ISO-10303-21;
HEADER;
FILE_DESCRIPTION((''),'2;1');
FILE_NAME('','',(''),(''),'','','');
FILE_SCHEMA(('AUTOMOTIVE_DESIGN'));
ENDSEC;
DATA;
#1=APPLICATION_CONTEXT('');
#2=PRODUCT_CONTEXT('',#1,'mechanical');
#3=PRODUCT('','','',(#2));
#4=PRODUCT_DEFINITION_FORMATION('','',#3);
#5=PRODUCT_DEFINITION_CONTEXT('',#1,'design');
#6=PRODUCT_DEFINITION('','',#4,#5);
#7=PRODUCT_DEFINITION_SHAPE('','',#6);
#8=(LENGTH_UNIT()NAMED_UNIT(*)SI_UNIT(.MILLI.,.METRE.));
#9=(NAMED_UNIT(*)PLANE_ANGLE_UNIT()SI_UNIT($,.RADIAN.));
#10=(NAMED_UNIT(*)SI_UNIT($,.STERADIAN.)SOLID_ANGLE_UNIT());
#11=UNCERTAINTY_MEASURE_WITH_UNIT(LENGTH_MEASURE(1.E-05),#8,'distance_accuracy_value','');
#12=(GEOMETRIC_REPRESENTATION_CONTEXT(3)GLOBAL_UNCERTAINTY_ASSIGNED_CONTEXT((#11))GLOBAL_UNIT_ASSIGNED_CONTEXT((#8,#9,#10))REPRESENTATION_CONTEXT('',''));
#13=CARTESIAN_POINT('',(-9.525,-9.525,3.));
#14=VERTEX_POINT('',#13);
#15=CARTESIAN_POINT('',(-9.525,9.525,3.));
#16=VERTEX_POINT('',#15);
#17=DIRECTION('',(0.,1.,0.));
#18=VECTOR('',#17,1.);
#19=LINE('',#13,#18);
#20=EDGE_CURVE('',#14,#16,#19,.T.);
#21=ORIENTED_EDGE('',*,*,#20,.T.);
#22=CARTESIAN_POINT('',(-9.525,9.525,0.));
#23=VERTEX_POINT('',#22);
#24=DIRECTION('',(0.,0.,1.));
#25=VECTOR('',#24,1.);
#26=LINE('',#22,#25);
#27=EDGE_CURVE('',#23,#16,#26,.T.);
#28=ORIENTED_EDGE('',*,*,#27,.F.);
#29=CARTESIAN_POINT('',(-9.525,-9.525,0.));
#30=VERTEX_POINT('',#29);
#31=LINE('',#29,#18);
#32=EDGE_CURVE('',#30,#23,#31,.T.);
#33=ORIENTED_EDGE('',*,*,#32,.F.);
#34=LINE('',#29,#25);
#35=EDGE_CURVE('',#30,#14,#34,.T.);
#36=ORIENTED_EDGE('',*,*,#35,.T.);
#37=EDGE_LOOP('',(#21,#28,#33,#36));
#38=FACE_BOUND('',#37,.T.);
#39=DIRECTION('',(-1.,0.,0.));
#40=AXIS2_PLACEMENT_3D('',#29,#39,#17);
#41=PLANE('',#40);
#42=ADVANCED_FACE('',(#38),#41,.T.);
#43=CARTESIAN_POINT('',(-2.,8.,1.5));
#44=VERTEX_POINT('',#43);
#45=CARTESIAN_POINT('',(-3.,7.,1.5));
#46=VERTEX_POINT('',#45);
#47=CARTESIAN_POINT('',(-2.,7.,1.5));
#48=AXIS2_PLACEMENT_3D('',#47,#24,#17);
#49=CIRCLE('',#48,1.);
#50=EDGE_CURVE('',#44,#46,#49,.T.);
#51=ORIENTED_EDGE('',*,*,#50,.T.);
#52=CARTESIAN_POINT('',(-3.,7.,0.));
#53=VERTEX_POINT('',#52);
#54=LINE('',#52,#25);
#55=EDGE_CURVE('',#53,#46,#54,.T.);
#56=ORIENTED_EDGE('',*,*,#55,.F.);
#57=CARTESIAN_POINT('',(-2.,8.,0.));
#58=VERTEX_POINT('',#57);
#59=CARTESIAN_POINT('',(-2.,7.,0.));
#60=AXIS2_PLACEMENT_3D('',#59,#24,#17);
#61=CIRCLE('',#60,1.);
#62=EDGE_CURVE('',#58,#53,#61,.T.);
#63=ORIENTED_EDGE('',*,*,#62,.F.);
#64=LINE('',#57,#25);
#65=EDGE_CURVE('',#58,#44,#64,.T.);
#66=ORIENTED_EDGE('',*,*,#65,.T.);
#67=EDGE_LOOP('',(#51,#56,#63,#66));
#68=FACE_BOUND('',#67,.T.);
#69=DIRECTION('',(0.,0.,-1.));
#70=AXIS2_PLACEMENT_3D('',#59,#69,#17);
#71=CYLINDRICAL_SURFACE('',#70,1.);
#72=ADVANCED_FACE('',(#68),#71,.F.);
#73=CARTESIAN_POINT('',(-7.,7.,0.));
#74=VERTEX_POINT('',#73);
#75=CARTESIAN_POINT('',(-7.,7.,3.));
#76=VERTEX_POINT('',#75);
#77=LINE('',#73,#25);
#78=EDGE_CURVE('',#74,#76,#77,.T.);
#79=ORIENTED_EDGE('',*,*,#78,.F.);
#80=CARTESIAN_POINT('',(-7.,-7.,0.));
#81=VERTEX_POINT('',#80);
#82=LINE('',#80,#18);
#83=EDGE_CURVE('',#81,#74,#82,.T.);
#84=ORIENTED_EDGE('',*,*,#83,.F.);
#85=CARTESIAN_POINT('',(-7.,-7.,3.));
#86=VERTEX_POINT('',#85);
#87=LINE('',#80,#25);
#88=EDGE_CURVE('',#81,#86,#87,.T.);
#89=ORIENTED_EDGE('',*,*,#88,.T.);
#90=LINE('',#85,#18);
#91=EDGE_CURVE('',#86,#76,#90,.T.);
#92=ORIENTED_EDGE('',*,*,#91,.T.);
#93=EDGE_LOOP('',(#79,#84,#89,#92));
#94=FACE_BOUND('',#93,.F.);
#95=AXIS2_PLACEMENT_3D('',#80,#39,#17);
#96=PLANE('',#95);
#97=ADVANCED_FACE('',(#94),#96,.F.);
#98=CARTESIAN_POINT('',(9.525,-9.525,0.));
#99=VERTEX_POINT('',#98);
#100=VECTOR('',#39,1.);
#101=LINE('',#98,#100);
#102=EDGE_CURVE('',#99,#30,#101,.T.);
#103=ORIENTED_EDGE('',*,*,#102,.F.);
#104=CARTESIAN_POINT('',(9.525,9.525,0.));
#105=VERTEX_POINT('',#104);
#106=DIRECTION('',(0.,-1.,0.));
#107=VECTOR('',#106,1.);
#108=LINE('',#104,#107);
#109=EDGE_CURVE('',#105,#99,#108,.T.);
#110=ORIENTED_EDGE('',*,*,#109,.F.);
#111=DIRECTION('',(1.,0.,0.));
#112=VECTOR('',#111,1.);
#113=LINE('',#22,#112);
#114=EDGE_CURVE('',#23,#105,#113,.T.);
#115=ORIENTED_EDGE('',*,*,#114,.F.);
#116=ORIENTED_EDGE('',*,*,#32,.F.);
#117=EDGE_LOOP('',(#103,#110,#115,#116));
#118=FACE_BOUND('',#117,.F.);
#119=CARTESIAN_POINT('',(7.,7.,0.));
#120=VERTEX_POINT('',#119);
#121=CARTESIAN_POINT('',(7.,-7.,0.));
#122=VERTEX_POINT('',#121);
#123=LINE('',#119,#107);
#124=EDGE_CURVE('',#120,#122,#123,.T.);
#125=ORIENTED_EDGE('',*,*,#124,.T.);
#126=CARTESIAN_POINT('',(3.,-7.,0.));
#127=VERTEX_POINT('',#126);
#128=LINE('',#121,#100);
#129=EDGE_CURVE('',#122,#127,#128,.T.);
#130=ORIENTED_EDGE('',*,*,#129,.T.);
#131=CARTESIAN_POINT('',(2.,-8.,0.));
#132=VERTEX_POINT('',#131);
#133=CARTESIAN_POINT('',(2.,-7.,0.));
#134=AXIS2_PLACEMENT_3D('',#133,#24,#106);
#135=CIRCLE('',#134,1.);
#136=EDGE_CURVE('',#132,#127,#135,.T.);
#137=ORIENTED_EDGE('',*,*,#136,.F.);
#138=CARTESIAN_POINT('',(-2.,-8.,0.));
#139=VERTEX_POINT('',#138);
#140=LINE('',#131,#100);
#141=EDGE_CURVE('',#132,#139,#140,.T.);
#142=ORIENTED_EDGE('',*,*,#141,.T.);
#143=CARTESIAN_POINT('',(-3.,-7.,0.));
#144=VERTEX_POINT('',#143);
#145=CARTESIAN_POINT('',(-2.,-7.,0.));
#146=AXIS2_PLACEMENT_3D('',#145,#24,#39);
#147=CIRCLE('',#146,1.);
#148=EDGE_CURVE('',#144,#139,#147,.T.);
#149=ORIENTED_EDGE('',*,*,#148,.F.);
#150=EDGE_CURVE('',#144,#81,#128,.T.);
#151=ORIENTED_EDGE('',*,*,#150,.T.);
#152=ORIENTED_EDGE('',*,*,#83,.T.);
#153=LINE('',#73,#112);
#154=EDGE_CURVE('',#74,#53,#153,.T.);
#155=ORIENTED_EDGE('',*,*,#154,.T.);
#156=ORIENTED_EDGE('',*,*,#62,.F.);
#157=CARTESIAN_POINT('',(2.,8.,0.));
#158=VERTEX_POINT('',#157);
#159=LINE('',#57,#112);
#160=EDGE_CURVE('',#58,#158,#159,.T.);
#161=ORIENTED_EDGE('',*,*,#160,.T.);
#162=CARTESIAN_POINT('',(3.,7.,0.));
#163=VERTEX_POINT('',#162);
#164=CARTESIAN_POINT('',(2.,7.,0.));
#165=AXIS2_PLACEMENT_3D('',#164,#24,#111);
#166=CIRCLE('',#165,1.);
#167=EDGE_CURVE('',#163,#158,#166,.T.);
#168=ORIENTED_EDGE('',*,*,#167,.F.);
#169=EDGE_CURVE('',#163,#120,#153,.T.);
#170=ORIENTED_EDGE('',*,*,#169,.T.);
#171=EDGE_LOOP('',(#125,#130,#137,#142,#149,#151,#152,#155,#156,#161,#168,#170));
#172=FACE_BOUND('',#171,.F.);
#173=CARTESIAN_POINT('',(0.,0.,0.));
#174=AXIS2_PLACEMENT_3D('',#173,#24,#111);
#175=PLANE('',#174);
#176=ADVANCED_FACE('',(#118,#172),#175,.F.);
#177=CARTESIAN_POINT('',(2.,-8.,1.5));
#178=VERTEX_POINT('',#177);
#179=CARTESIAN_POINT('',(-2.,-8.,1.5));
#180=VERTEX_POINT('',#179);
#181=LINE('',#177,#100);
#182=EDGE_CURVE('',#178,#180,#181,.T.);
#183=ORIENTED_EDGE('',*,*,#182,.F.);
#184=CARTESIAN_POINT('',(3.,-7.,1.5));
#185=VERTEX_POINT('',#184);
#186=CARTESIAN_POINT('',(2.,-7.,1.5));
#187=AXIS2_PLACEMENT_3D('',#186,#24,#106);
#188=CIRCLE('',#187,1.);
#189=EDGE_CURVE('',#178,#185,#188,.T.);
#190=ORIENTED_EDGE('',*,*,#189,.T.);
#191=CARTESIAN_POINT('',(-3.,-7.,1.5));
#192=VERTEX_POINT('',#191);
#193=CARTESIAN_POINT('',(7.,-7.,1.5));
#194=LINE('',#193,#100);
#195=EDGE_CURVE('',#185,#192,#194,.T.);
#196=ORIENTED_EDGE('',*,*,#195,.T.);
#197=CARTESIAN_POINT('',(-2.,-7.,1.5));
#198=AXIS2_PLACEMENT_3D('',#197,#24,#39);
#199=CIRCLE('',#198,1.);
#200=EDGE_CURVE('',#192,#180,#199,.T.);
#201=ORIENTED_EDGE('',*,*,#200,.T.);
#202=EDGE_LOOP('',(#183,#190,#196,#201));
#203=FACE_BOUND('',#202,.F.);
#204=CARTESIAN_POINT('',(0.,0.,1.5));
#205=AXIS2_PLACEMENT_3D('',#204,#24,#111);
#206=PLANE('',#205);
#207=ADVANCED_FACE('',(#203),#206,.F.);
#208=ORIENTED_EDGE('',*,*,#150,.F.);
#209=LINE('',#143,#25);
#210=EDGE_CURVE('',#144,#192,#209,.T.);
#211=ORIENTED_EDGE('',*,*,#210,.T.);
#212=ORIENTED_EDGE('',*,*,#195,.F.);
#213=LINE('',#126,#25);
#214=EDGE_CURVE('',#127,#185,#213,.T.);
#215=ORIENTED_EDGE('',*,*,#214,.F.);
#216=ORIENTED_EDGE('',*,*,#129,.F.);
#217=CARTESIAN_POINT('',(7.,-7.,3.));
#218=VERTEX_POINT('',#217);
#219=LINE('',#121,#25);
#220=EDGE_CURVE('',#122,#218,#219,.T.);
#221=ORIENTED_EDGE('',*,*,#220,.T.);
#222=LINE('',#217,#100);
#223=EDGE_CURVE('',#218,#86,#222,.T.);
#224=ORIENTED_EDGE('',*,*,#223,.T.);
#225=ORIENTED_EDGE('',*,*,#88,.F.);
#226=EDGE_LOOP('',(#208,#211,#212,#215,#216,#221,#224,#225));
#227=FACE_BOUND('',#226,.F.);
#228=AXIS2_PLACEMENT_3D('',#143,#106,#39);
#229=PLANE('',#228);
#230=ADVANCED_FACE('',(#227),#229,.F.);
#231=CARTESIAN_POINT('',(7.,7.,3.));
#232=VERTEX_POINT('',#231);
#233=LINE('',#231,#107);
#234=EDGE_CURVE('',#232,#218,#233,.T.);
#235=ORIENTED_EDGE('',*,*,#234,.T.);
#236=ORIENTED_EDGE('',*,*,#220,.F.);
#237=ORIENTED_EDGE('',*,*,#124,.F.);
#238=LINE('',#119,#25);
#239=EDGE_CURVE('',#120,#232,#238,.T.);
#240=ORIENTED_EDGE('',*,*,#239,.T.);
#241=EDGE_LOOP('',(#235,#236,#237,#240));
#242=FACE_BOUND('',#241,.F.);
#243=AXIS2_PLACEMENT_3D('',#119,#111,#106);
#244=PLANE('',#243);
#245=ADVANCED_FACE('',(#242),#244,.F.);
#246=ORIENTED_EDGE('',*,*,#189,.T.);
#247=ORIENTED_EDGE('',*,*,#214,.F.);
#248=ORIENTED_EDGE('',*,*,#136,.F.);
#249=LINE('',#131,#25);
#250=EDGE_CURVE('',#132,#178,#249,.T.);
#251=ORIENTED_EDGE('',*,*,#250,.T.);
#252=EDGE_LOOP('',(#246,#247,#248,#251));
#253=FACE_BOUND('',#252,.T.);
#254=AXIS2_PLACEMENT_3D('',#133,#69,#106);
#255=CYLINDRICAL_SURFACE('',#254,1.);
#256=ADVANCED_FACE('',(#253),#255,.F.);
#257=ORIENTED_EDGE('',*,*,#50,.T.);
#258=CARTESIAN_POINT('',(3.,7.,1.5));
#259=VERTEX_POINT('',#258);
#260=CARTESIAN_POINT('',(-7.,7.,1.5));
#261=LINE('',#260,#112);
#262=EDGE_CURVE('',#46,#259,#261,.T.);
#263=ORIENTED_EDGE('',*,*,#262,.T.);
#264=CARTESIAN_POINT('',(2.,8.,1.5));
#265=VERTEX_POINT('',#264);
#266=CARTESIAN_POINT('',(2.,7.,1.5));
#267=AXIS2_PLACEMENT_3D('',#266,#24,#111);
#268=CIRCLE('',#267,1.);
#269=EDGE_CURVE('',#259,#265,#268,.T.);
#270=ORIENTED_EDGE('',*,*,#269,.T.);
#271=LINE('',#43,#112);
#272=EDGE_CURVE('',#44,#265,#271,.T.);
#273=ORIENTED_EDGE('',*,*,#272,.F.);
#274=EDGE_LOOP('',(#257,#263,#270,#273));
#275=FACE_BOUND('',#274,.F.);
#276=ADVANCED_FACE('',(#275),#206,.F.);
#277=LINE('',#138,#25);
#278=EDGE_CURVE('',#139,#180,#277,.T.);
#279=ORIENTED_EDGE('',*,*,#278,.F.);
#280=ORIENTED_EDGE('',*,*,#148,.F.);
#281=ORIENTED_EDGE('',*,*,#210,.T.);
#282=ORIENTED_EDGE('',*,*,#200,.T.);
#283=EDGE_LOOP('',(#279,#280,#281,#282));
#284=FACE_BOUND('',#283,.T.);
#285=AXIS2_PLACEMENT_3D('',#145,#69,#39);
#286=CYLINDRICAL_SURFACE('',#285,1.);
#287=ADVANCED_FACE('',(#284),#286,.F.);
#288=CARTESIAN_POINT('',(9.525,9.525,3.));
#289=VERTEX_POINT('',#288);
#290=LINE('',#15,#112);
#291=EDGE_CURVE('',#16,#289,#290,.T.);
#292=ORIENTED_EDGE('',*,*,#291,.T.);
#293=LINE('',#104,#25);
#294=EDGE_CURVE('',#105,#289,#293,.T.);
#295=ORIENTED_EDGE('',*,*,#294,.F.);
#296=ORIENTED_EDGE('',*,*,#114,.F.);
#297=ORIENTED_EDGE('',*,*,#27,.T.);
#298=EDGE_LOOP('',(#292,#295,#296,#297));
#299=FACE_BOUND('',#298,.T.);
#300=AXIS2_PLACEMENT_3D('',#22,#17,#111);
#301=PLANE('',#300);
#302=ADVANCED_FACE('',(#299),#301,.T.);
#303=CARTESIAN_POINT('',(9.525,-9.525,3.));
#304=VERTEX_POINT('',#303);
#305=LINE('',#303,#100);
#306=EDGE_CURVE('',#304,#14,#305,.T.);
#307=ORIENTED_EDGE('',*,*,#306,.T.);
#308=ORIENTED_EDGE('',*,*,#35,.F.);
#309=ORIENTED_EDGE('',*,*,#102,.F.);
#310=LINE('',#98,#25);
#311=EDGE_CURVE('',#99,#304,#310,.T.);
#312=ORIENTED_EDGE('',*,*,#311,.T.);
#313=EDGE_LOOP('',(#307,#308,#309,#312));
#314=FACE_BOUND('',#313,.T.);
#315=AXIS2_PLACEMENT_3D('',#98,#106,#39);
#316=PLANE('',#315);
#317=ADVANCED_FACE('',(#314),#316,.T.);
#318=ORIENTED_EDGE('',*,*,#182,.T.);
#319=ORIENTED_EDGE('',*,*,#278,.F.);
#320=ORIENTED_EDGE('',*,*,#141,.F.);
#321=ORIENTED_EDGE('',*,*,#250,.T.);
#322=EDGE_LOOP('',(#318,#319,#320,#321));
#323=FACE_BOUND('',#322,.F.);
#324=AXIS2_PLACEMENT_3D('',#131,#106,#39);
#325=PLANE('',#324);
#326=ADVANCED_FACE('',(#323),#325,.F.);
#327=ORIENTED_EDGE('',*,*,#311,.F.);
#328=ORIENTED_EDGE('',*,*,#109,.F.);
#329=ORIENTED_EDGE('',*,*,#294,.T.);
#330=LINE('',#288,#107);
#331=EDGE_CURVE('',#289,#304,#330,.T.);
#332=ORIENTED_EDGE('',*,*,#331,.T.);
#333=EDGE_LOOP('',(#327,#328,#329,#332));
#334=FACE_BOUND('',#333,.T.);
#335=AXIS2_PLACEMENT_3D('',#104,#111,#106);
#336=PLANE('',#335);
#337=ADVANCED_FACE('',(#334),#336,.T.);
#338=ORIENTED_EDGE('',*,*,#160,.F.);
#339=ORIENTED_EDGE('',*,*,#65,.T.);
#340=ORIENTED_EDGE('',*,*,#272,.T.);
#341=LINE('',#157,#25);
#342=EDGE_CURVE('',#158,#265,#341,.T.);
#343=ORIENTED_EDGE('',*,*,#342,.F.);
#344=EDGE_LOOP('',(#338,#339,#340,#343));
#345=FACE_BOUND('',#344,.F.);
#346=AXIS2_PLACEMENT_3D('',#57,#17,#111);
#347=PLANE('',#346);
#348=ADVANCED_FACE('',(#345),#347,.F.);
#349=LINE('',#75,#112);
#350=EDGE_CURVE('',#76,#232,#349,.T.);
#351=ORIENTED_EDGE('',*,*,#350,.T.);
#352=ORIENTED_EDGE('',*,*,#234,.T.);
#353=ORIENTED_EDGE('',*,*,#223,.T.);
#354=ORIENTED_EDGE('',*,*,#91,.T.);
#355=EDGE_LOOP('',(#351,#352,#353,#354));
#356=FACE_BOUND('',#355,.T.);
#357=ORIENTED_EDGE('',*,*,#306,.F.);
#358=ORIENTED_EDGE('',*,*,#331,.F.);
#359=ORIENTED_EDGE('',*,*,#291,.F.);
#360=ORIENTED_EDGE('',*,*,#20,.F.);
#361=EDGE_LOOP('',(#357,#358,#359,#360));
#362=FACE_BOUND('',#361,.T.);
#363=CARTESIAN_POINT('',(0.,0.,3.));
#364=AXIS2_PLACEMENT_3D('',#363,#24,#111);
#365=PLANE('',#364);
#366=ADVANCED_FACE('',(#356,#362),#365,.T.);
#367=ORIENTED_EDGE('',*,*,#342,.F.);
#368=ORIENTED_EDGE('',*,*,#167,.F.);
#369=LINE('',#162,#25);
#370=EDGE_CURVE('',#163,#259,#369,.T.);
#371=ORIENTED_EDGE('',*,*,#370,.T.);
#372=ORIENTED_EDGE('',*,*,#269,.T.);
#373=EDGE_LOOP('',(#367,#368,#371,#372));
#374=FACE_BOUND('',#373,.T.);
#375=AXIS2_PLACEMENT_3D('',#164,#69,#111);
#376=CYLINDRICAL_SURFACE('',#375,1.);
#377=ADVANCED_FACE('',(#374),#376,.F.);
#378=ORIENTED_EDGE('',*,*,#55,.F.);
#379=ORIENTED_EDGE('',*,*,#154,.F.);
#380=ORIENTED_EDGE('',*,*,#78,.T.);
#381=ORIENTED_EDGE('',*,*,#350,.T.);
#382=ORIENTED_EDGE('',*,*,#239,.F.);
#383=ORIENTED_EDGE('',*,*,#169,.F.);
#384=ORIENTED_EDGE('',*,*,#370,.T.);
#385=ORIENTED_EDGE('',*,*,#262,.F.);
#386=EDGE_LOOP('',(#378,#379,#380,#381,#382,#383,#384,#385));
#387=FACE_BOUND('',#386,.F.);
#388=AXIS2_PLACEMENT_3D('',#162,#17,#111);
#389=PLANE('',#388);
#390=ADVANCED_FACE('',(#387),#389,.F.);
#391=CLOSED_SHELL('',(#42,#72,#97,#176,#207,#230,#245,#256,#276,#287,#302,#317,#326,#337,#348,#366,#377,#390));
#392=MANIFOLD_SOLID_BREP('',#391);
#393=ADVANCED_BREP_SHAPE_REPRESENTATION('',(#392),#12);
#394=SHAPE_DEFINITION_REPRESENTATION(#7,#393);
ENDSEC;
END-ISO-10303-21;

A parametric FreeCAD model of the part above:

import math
import FreeCAD as App
import Part
import Sketcher

V = App.Vector

doc = App.newDocument("Part")
params = doc.addObject("Spreadsheet::Sheet", "Params")
for row, (alias, value) in enumerate([
    ("sketch1_radius", "1 mm"),
    ("sketch1_width", "4 mm"),
    ("sketch1_height", "14 mm"),
    ("sketch1_width2", "19.05 mm"),
    ("pad1_length", "3 mm"),
    ("sketch2_radius", "1 mm"),
    ("sketch2_width", "6 mm"),
    ("pad2_length", "1.5 mm"),
], start=1):
    params.set(f"A{row}", alias)
    params.set(f"B{row}", "=" + value)
    params.setAlias(f"B{row}", alias)

body = doc.addObject("PartDesign::Body", "Body")

# Sketch on XY plane
sketch1 = body.newObject("Sketcher::SketchObject", "Sketch")
sketch1.AttachmentSupport = (doc.getObject("XY_Plane"), [""])
sketch1.MapMode = "FlatFace"
sketch1.addGeometry([
    Part.LineSegment(V(-9.525, -9.525, 0), V(9.525, -9.525, 0)),  # 0
    Part.LineSegment(V(9.525, -9.525, 0), V(9.525, 9.525, 0)),  # 1
    Part.LineSegment(V(9.525, 9.525, 0), V(-9.525, 9.525, 0)),  # 2
    Part.LineSegment(V(-9.525, 9.525, 0), V(-9.525, -9.525, 0)),  # 3
    Part.LineSegment(V(7, 7, 0), V(7, -7, 0)),  # 4
    Part.LineSegment(V(7, -7, 0), V(3, -7, 0)),  # 5
    Part.ArcOfCircle(Part.Circle(V(2, -7, 0), V(0, 0, 1), 1), math.radians(-90), math.radians(0)),  # 6
    Part.LineSegment(V(2, -8, 0), V(-2, -8, 0)),  # 7
    Part.ArcOfCircle(Part.Circle(V(-2, -7, 0), V(0, 0, 1), 1), math.radians(180), math.radians(270)),  # 8
    Part.LineSegment(V(-3, -7, 0), V(-7, -7, 0)),  # 9
    Part.LineSegment(V(-7, -7, 0), V(-7, 7, 0)),  # 10
    Part.LineSegment(V(-7, 7, 0), V(-3, 7, 0)),  # 11
    Part.ArcOfCircle(Part.Circle(V(-2, 7, 0), V(0, 0, 1), 1), math.radians(90), math.radians(180)),  # 12
    Part.LineSegment(V(-2, 8, 0), V(2, 8, 0)),  # 13
    Part.ArcOfCircle(Part.Circle(V(2, 7, 0), V(0, 0, 1), 1), math.radians(0), math.radians(90)),  # 14
    Part.LineSegment(V(3, 7, 0), V(7, 7, 0)),  # 15
], False)
sketch1.addConstraint([
    Sketcher.Constraint("Coincident", 0, 2, 1, 1),
    Sketcher.Constraint("Coincident", 1, 2, 2, 1),
    Sketcher.Constraint("Coincident", 2, 2, 3, 1),
    Sketcher.Constraint("Coincident", 3, 2, 0, 1),
    Sketcher.Constraint("Coincident", 4, 2, 5, 1),
    Sketcher.Constraint("Coincident", 5, 2, 6, 2),
    Sketcher.Constraint("Tangent", 6, 1, 7, 1),
    Sketcher.Constraint("Tangent", 7, 2, 8, 2),
    Sketcher.Constraint("Coincident", 8, 1, 9, 1),
    Sketcher.Constraint("Coincident", 9, 2, 10, 1),
    Sketcher.Constraint("Coincident", 10, 2, 11, 1),
    Sketcher.Constraint("Coincident", 11, 2, 12, 2),
    Sketcher.Constraint("Tangent", 12, 1, 13, 1),
    Sketcher.Constraint("Tangent", 13, 2, 14, 2),
    Sketcher.Constraint("Coincident", 14, 1, 15, 1),
    Sketcher.Constraint("Coincident", 15, 2, 4, 1),
    Sketcher.Constraint("Horizontal", 0),
    Sketcher.Constraint("Vertical", 1),
    Sketcher.Constraint("Horizontal", 2),
    Sketcher.Constraint("Vertical", 3),
    Sketcher.Constraint("Vertical", 4),
    Sketcher.Constraint("Horizontal", 5),
    Sketcher.Constraint("Horizontal", 7),
    Sketcher.Constraint("Horizontal", 9),
    Sketcher.Constraint("Vertical", 10),
    Sketcher.Constraint("Horizontal", 11),
    Sketcher.Constraint("Horizontal", 13),
    Sketcher.Constraint("Horizontal", 15),
    Sketcher.Constraint("Equal", 6, 8),
    Sketcher.Constraint("Equal", 8, 12),
    Sketcher.Constraint("Equal", 12, 14),
    Sketcher.Constraint("Symmetric", 6, 3, 12, 3, -1, 1),
    Sketcher.Constraint("Symmetric", 0, 2, 2, 2, -1, 1),
    Sketcher.Constraint("Symmetric", 4, 2, 10, 2, -1, 1),
    Sketcher.Constraint("Symmetric", 8, 1, 14, 1, -1, 1),
    Sketcher.Constraint("Symmetric", 5, 2, 8, 1, -2),
    Sketcher.Constraint("Horizontal", 8, 3, 4, 2),
    Sketcher.Constraint("Equal", 5, 7),
    Sketcher.Constraint("Equal", 2, 1),
    Sketcher.Constraint("Radius", 6, 1.0),
    Sketcher.Constraint("DistanceX", 5, 2, 5, 1, 4.0),
    Sketcher.Constraint("DistanceY", 4, 2, 4, 1, 14.0),
    Sketcher.Constraint("DistanceX", 0, 1, 0, 2, 19.05),
])
sketch1.setExpression("Constraints[39]", "Params.sketch1_radius")
sketch1.setExpression("Constraints[40]", "Params.sketch1_width")
sketch1.setExpression("Constraints[41]", "Params.sketch1_height")
sketch1.setExpression("Constraints[42]", "Params.sketch1_width2")
pad1 = body.newObject("PartDesign::Pad", "Pad")
pad1.Profile = sketch1
pad1.setExpression("Length", "Params.pad1_length")

# Sketch on XY plane
sketch2 = body.newObject("Sketcher::SketchObject", "Sketch001")
sketch2.AttachmentSupport = (doc.getObject("XY_Plane"), [""])
sketch2.MapMode = "FlatFace"
sketch2.AttachmentOffset = App.Placement(V(0, 0, 1.5), App.Rotation())
sketch2.addGeometry([
    Part.ArcOfCircle(Part.Circle(V(2, -7, 0), V(0, 0, 1), 1), math.radians(-90), math.radians(0)),  # 0
    Part.LineSegment(V(3, -7, 0), V(-3, -7, 0)),  # 1
    Part.ArcOfCircle(Part.Circle(V(-2, -7, 0), V(0, 0, 1), 1), math.radians(180), math.radians(270)),  # 2
    Part.LineSegment(V(-2, -8, 0), V(2, -8, 0)),  # 3
    Part.LineSegment(V(-3, 7, 0), V(3, 7, 0)),  # 4
    Part.ArcOfCircle(Part.Circle(V(2, 7, 0), V(0, 0, 1), 1), math.radians(0), math.radians(90)),  # 5
    Part.LineSegment(V(2, 8, 0), V(-2, 8, 0)),  # 6
    Part.ArcOfCircle(Part.Circle(V(-2, 7, 0), V(0, 0, 1), 1), math.radians(90), math.radians(180)),  # 7
], False)
sketch2.addConstraint([
    Sketcher.Constraint("Coincident", 0, 2, 1, 1),
    Sketcher.Constraint("Coincident", 1, 2, 2, 1),
    Sketcher.Constraint("Tangent", 2, 2, 3, 1),
    Sketcher.Constraint("Tangent", 3, 2, 0, 1),
    Sketcher.Constraint("Coincident", 4, 2, 5, 1),
    Sketcher.Constraint("Tangent", 5, 2, 6, 1),
    Sketcher.Constraint("Tangent", 6, 2, 7, 1),
    Sketcher.Constraint("Coincident", 7, 2, 4, 1),
    Sketcher.Constraint("Horizontal", 1),
    Sketcher.Constraint("Horizontal", 3),
    Sketcher.Constraint("Horizontal", 4),
    Sketcher.Constraint("Horizontal", 6),
    Sketcher.Constraint("Equal", 0, 2),
    Sketcher.Constraint("Equal", 2, 5),
    Sketcher.Constraint("Equal", 5, 7),
    Sketcher.Constraint("Symmetric", 2, 3, 5, 3, -1, 1),
    Sketcher.Constraint("Symmetric", 0, 2, 7, 2, -1, 1),
    Sketcher.Constraint("Horizontal", 2, 3, 0, 2),
    Sketcher.Constraint("Vertical", 0, 3, 5, 3),
    Sketcher.Constraint("Radius", 0, 1.0),
    Sketcher.Constraint("DistanceX", 1, 2, 1, 1, 6.0),
    Sketcher.Constraint("DistanceY", 0, 3, -1, 1, 7.0),
])
sketch2.setExpression("Constraints[19]", "Params.sketch2_radius")
sketch2.setExpression("Constraints[20]", "Params.sketch2_width")
pad2 = body.newObject("PartDesign::Pad", "Pad001")
pad2.Profile = sketch2
pad2.setExpression("Length", "Params.pad2_length")

doc.recompute()
